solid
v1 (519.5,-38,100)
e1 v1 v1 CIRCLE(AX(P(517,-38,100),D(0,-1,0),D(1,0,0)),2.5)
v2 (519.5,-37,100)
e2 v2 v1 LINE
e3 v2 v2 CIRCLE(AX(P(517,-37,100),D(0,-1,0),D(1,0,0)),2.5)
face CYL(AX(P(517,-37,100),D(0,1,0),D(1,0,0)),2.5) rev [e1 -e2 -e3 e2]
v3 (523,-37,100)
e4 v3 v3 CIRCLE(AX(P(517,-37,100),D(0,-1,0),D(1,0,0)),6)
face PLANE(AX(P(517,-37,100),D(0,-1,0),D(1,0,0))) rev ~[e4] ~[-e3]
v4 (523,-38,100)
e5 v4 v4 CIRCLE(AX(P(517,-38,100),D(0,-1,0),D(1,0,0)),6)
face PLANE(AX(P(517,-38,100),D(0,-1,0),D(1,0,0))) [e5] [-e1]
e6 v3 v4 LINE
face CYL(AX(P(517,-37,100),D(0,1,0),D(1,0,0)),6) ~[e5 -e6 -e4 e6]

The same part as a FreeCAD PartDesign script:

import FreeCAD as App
import Part
import Sketcher
from FreeCAD import Vector

doc = App.newDocument("Part")
body = doc.addObject("PartDesign::Body", "Body")

# Sketch on XY plane
sketch1 = body.newObject("Sketcher::SketchObject", "Sketch")
sketch1.AttachmentSupport = (doc.getObject("XY_Plane"), [""])
sketch1.MapMode = "FlatFace"
sketch1.addGeometry(Part.Circle(Vector(0, 0, 0), Vector(0, 0, 1), 2.5), False)
sketch1.addConstraint([
    Sketcher.Constraint("Coincident", 0, 3, -1, 1),
    Sketcher.Constraint("Diameter", 0, 5.0),
])
pad1 = body.newObject("PartDesign::Pad", "Pad")
pad1.Profile = sketch1
pad1.Length = 1
body2 = doc.addObject("PartDesign::Body", "Body001")
doc.recompute()

body.Placement = App.Placement(Vector(0, 0, 0), App.Rotation(Vector(1, 0, 0), 90))
boolean = body2.newObject("PartDesign::Boolean", "Boolean")
boolean.Type = "Fuse"
boolean.addObjects([body])
body3 = doc.addObject("PartDesign::Body", "Body002")
doc.recompute()

body2.Placement = App.Placement(Vector(518, -37, 100), App.Rotation(Vector(0, 0, 1), 0))
boolean2 = body3.newObject("PartDesign::Boolean", "Boolean001")
boolean2.Type = "Fuse"
boolean2.addObjects([body2])
body4 = doc.addObject("PartDesign::Body", "Body003")

# Sketch on XY plane
sketch2 = body4.newObject("Sketcher::SketchObject", "Sketch001")
sketch2.AttachmentSupport = (doc.getObject("XY_Plane003"), [""])
sketch2.MapMode = "FlatFace"
sketch2.addGeometry(Part.Circle(Vector(0, 0, 0), Vector(0, 0, 1), 6), False)
sketch2.addConstraint([
    Sketcher.Constraint("Coincident", 0, 3, -1, 1),
    Sketcher.Constraint("Diameter", 0, 12.0),
])
pad2 = body4.newObject("PartDesign::Pad", "Pad001")
pad2.Profile = sketch2
pad2.Length = 1
body5 = doc.addObject("PartDesign::Body", "Body004")
doc.recompute()

body4.Placement = App.Placement(Vector(0, 0, 0), App.Rotation(Vector(1, 0, 0), 90))
boolean3 = body5.newObject("PartDesign::Boolean", "Boolean002")
boolean3.Type = "Fuse"
boolean3.addObjects([body4])
body6 = doc.addObject("PartDesign::Body", "Body005")
doc.recompute()

body5.Placement = App.Placement(Vector(518, -37, 100), App.Rotation(Vector(0, 0, 1), 0))
boolean4 = body6.newObject("PartDesign::Boolean", "Boolean003")
boolean4.Type = "Fuse"
boolean4.addObjects([body5])
doc.recompute()

boolean5 = body6.newObject("PartDesign::Boolean", "Boolean004")
boolean5.Type = "Cut"
boolean5.addObjects([body3])
body7 = doc.addObject("PartDesign::Body", "Body006")
doc.recompute()

body6.Placement = App.Placement(Vector(-1, 0, 0), App.Rotation(Vector(0, 0, 1), 0))
boolean6 = body7.newObject("PartDesign::Boolean", "Boolean005")
boolean6.Type = "Fuse"
boolean6.addObjects([body6])

doc.recompute()
